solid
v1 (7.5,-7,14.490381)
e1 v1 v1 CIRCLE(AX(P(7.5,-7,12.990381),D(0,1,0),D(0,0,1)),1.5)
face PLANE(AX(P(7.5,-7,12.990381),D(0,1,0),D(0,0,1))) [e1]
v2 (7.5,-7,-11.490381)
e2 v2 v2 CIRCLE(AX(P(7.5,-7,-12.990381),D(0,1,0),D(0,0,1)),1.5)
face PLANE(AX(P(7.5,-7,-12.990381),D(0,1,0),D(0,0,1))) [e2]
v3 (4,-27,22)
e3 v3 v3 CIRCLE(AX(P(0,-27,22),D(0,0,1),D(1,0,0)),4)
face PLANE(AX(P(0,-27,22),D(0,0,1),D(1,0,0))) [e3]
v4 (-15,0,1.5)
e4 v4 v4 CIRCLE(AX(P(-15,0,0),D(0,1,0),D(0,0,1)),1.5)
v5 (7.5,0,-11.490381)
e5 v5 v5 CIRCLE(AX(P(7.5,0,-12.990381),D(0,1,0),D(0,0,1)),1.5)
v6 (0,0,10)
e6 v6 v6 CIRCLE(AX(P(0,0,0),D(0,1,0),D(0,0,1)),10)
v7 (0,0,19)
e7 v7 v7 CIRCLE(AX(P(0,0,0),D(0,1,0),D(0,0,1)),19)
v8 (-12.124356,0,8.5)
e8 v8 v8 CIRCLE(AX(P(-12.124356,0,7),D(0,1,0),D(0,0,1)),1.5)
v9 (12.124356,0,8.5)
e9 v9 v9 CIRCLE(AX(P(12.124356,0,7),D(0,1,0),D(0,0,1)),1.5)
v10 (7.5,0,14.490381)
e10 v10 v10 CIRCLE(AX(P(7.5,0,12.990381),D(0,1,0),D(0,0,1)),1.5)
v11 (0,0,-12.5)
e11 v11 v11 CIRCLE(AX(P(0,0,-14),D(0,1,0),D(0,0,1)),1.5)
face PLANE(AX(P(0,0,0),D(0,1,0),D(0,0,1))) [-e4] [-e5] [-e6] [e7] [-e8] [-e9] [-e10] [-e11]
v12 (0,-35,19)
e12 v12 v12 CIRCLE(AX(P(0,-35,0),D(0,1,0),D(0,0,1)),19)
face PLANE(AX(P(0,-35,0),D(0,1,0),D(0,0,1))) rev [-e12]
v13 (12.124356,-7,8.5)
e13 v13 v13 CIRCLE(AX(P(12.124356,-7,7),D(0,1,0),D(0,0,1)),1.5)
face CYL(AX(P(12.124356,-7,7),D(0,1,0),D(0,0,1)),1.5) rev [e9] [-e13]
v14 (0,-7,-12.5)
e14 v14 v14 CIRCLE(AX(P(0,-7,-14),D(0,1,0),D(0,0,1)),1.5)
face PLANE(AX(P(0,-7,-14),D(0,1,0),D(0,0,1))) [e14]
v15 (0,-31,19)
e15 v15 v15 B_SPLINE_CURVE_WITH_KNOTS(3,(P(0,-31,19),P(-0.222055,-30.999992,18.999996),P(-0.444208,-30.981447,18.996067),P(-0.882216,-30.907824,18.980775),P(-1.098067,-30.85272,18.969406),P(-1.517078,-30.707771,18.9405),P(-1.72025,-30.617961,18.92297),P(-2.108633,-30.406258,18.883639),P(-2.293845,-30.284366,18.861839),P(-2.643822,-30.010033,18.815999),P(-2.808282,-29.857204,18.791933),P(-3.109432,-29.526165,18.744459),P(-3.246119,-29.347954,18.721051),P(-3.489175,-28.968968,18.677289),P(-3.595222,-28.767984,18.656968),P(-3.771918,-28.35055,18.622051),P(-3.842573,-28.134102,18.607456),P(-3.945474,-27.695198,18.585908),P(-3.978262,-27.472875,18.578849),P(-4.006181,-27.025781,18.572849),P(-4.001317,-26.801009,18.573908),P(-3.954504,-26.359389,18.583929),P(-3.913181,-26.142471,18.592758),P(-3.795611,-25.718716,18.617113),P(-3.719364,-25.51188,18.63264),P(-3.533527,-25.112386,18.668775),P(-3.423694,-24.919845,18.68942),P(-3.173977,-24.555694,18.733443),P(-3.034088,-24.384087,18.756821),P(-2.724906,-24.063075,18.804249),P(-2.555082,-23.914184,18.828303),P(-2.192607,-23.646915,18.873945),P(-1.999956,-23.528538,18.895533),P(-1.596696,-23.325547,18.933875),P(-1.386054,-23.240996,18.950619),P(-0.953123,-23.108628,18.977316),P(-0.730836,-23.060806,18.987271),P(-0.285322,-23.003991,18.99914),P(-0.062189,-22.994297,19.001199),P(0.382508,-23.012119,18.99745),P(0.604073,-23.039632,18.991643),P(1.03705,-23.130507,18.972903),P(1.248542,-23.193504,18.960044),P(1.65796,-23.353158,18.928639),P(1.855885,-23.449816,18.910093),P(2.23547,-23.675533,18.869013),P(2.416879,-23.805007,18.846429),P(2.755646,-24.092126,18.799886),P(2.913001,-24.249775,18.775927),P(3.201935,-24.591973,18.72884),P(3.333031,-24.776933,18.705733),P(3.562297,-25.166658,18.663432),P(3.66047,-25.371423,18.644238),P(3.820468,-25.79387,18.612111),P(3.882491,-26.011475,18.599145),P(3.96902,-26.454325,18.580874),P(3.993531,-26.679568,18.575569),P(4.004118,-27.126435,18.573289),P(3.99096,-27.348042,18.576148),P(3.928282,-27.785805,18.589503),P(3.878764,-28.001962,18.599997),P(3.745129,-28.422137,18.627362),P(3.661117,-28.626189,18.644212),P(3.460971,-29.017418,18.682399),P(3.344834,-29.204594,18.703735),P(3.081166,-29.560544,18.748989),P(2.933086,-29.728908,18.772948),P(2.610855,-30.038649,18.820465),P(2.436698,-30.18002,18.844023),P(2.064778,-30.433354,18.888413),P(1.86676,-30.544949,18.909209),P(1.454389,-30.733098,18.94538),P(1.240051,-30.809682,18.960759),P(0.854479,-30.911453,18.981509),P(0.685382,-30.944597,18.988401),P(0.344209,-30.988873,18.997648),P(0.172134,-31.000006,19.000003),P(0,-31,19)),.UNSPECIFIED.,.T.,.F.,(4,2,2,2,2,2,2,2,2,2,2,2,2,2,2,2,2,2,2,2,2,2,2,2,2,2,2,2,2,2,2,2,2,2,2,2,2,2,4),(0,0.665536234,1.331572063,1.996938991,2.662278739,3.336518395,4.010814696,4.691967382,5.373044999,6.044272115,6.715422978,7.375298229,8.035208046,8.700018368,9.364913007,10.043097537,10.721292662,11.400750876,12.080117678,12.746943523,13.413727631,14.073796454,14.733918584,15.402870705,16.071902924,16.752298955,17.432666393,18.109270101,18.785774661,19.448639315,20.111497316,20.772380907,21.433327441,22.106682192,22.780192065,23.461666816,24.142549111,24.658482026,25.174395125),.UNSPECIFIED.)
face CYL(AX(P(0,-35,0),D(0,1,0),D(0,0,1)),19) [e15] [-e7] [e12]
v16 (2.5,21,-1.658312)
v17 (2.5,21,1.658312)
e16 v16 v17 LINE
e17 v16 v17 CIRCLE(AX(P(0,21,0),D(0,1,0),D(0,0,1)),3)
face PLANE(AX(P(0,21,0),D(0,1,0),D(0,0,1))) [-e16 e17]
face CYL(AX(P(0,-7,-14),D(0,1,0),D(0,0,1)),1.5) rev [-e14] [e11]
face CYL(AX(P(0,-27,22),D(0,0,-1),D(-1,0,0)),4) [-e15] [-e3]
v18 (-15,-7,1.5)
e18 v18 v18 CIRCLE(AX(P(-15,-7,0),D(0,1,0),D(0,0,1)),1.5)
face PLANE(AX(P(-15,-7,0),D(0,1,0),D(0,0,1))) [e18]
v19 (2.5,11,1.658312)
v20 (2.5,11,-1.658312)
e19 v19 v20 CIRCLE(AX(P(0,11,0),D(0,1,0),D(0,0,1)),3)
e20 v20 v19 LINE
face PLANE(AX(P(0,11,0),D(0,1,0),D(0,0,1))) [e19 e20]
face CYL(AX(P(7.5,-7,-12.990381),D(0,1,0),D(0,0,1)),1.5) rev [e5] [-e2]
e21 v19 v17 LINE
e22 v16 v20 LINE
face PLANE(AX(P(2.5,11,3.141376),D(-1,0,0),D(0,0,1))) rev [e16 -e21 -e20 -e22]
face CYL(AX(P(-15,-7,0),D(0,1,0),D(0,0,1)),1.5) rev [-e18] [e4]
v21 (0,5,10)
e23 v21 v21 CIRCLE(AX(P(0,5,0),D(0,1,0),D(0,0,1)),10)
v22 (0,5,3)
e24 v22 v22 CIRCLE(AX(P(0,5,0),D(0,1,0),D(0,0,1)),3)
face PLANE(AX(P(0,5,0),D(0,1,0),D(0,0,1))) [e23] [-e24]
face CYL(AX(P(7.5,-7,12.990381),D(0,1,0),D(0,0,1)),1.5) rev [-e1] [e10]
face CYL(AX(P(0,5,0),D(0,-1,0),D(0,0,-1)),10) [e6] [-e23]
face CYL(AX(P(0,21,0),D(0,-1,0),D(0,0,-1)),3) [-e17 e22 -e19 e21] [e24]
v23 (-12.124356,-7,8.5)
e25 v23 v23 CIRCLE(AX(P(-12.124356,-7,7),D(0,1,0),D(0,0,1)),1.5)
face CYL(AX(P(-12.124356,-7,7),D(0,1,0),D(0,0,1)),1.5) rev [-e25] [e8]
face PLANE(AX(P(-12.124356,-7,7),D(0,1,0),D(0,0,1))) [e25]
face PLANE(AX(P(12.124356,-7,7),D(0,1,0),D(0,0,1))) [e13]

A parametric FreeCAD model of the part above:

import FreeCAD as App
import Part
import Sketcher

V = App.Vector
Q = App.Units.Quantity


def add_polygon(sketch, points):
    """Adds a closed chain of lines whose ends are joined by coincident constraints."""
    first, n = sketch.GeometryCount, len(points)
    for a, b in zip(points, points[1:] + points[:1]):
        sketch.addGeometry(Part.LineSegment(App.Vector(*a, 0), App.Vector(*b, 0)), False)
    for i in range(n):
        sketch.addConstraint(Sketcher.Constraint("Coincident", first + i, 2, first + (i + 1) % n, 1))

doc = App.newDocument("Part")
params = doc.addObject("Spreadsheet::Sheet", "Params")
for row, (alias, value) in enumerate([
    ("sketch1_diameter", "38 mm"),
    ("pad1_length", "35 mm"),
    ("sketch2_diameter", "20 mm"),
    ("pad2_length", "5 mm"),
    ("sketch3_diameter", "6 mm"),
    ("pad3_length", "16 mm"),
    ("sketch4_width", "0.5 mm"),
    ("pocket1_length", "10 mm"),
    ("sketch5_diameter", "3 mm"),
    ("pocket2_length", "7 mm"),
    ("sketch6_diameter", "8 mm"),
    ("pad4_length", "22 mm"),
], start=1):
    params.set(f"A{row}", alias)
    params.set(f"B{row}", "=" + value)
    params.setAlias(f"B{row}", alias)

body = doc.addObject("PartDesign::Body", "Body")

# Sketch on XZ plane
sketch1 = body.newObject("Sketcher::SketchObject", "Sketch")
sketch1.AttachmentSupport = (doc.getObject("XZ_Plane"), [""])
sketch1.MapMode = "FlatFace"
sketch1.addGeometry(Part.Circle(V(0, 0, 0), V(0, 0, 1), 19), False)
sketch1.addConstraint([
    Sketcher.Constraint("Coincident", 0, 3, -1, 1),
    Sketcher.Constraint("Diameter", 0, Q("38 mm")),
])
sketch1.setExpression("Constraints[1]", "Params.sketch1_diameter")
pad1 = body.newObject("PartDesign::Pad", "Pad")
pad1.Profile = sketch1
pad1.setExpression("Length", "Params.pad1_length")

# Sketch on XZ plane
sketch2 = body.newObject("Sketcher::SketchObject", "Sketch001")
sketch2.AttachmentSupport = (doc.getObject("XZ_Plane"), [""])
sketch2.MapMode = "FlatFace"
sketch2.addGeometry(Part.Circle(V(0, 0, 0), V(0, 0, 1), 10), False)
sketch2.addConstraint([
    Sketcher.Constraint("Coincident", 0, 3, -1, 1),
    Sketcher.Constraint("Diameter", 0, Q("20 mm")),
])
sketch2.setExpression("Constraints[1]", "Params.sketch2_diameter")
pad2 = body.newObject("PartDesign::Pad", "Pad001")
pad2.Profile = sketch2
pad2.setExpression("Length", "Params.pad2_length")
pad2.Reversed = True

# Sketch on XZ plane
sketch3 = body.newObject("Sketcher::SketchObject", "Sketch002")
sketch3.AttachmentSupport = (doc.getObject("XZ_Plane"), [""])
sketch3.MapMode = "FlatFace"
sketch3.AttachmentOffset = App.Placement(V(0, 0, -5), App.Rotation())
sketch3.addGeometry(Part.Circle(V(0, 0, 0), V(0, 0, 1), 3), False)
sketch3.addConstraint([
    Sketcher.Constraint("Coincident", 0, 3, -1, 1),
    Sketcher.Constraint("Diameter", 0, Q("6 mm")),
])
sketch3.setExpression("Constraints[1]", "Params.sketch3_diameter")
pad3 = body.newObject("PartDesign::Pad", "Pad002")
pad3.Profile = sketch3
pad3.setExpression("Length", "Params.pad3_length")
pad3.Reversed = True

# Sketch on XZ plane
sketch4 = body.newObject("Sketcher::SketchObject", "Sketch003")
sketch4.AttachmentSupport = (doc.getObject("XZ_Plane"), [""])
sketch4.MapMode = "FlatFace"
sketch4.AttachmentOffset = App.Placement(V(0, 0, -21), App.Rotation())
add_polygon(sketch4, [(2.5, -2.974824), (2.5, 3.141376), (3, 3.141376), (3, -2.974824)])  # lines 0-3
sketch4.addConstraint([
    Sketcher.Constraint("Vertical", 0),
    Sketcher.Constraint("Horizontal", 1),
    Sketcher.Constraint("Vertical", 2),
    Sketcher.Constraint("Horizontal", 3),
    Sketcher.Constraint("DistanceX", 1, 1, 1, 2, Q("0.5 mm")),
    Sketcher.Constraint("DistanceX", -1, 1, 1, 2, Q("3 mm")),
    Sketcher.Constraint("DistanceY", 0, 1, 0, 2, Q("6.1162 mm")),
    Sketcher.Constraint("DistanceY", -1, 1, 0, 2, Q("3.141376 mm")),
])
sketch4.setExpression("Constraints[8]", "Params.sketch4_width")
pocket1 = body.newObject("PartDesign::Pocket", "Pocket")
pocket1.Profile = sketch4
pocket1.setExpression("Length", "Params.pocket1_length")
pocket1.Reversed = True

# Sketch on XZ plane
sketch5 = body.newObject("Sketcher::SketchObject", "Sketch004")
sketch5.AttachmentSupport = (doc.getObject("XZ_Plane"), [""])
sketch5.MapMode = "FlatFace"
sketch5.addGeometry([
    Part.Circle(V(-15, 0, 0), V(0, 0, 1), 1.5),  # 0
    Part.Circle(V(0, -14, 0), V(0, 0, 1), 1.5),  # 1
    Part.Circle(V(7.5, -12.990381, 0), V(0, 0, 1), 1.5),  # 2
    Part.Circle(V(7.5, 12.990381, 0), V(0, 0, 1), 1.5),  # 3
    Part.Circle(V(12.124356, 7, 0), V(0, 0, 1), 1.5),  # 4
    Part.Circle(V(-12.124356, 7, 0), V(0, 0, 1), 1.5),  # 5
], False)
sketch5.addConstraint([
    Sketcher.Constraint("Equal", 0, 1),
    Sketcher.Constraint("Equal", 1, 2),
    Sketcher.Constraint("Equal", 2, 3),
    Sketcher.Constraint("Equal", 3, 4),
    Sketcher.Constraint("Equal", 4, 5),
    Sketcher.Constraint("Symmetric", 4, 3, 5, 3, -2),
    Sketcher.Constraint("Symmetric", 2, 3, 3, 3, -1),
    Sketcher.Constraint("PointOnObject", 0, 3, -1),
    Sketcher.Constraint("PointOnObject", 1, 3, -2),
    Sketcher.Constraint("Diameter", 0, Q("3 mm")),
    Sketcher.Constraint("DistanceX", 0, 3, -1, 1, Q("15 mm")),
    Sketcher.Constraint("DistanceY", 1, 3, -1, 1, Q("14 mm")),
    Sketcher.Constraint("DistanceY", -1, 1, 4, 3, Q("7 mm")),
    Sketcher.Constraint("DistanceX", -1, 1, 2, 3, Q("7.5 mm")),
    Sketcher.Constraint("DistanceY", 2, 3, -1, 1, Q("12.990381 mm")),
    Sketcher.Constraint("DistanceX", 5, 3, 4, 3, Q("24.248711 mm")),
])
sketch5.setExpression("Constraints[9]", "Params.sketch5_diameter")
pocket2 = body.newObject("PartDesign::Pocket", "Pocket001")
pocket2.Profile = sketch5
pocket2.setExpression("Length", "Params.pocket2_length")
pocket2.Reversed = True

# Sketch on XY plane
sketch6 = body.newObject("Sketcher::SketchObject", "Sketch005")
sketch6.AttachmentSupport = (doc.getObject("XY_Plane"), [""])
sketch6.MapMode = "FlatFace"
sketch6.addGeometry(Part.Circle(V(0, -27, 0), V(0, 0, 1), 4), False)
sketch6.addConstraint([
    Sketcher.Constraint("PointOnObject", 0, 3, -2),
    Sketcher.Constraint("Diameter", 0, Q("8 mm")),
    Sketcher.Constraint("DistanceY", 0, 3, -1, 1, Q("27 mm")),
])
sketch6.setExpression("Constraints[1]", "Params.sketch6_diameter")
pad4 = body.newObject("PartDesign::Pad", "Pad003")
pad4.Profile = sketch6
pad4.setExpression("Length", "Params.pad4_length")

doc.recompute()
